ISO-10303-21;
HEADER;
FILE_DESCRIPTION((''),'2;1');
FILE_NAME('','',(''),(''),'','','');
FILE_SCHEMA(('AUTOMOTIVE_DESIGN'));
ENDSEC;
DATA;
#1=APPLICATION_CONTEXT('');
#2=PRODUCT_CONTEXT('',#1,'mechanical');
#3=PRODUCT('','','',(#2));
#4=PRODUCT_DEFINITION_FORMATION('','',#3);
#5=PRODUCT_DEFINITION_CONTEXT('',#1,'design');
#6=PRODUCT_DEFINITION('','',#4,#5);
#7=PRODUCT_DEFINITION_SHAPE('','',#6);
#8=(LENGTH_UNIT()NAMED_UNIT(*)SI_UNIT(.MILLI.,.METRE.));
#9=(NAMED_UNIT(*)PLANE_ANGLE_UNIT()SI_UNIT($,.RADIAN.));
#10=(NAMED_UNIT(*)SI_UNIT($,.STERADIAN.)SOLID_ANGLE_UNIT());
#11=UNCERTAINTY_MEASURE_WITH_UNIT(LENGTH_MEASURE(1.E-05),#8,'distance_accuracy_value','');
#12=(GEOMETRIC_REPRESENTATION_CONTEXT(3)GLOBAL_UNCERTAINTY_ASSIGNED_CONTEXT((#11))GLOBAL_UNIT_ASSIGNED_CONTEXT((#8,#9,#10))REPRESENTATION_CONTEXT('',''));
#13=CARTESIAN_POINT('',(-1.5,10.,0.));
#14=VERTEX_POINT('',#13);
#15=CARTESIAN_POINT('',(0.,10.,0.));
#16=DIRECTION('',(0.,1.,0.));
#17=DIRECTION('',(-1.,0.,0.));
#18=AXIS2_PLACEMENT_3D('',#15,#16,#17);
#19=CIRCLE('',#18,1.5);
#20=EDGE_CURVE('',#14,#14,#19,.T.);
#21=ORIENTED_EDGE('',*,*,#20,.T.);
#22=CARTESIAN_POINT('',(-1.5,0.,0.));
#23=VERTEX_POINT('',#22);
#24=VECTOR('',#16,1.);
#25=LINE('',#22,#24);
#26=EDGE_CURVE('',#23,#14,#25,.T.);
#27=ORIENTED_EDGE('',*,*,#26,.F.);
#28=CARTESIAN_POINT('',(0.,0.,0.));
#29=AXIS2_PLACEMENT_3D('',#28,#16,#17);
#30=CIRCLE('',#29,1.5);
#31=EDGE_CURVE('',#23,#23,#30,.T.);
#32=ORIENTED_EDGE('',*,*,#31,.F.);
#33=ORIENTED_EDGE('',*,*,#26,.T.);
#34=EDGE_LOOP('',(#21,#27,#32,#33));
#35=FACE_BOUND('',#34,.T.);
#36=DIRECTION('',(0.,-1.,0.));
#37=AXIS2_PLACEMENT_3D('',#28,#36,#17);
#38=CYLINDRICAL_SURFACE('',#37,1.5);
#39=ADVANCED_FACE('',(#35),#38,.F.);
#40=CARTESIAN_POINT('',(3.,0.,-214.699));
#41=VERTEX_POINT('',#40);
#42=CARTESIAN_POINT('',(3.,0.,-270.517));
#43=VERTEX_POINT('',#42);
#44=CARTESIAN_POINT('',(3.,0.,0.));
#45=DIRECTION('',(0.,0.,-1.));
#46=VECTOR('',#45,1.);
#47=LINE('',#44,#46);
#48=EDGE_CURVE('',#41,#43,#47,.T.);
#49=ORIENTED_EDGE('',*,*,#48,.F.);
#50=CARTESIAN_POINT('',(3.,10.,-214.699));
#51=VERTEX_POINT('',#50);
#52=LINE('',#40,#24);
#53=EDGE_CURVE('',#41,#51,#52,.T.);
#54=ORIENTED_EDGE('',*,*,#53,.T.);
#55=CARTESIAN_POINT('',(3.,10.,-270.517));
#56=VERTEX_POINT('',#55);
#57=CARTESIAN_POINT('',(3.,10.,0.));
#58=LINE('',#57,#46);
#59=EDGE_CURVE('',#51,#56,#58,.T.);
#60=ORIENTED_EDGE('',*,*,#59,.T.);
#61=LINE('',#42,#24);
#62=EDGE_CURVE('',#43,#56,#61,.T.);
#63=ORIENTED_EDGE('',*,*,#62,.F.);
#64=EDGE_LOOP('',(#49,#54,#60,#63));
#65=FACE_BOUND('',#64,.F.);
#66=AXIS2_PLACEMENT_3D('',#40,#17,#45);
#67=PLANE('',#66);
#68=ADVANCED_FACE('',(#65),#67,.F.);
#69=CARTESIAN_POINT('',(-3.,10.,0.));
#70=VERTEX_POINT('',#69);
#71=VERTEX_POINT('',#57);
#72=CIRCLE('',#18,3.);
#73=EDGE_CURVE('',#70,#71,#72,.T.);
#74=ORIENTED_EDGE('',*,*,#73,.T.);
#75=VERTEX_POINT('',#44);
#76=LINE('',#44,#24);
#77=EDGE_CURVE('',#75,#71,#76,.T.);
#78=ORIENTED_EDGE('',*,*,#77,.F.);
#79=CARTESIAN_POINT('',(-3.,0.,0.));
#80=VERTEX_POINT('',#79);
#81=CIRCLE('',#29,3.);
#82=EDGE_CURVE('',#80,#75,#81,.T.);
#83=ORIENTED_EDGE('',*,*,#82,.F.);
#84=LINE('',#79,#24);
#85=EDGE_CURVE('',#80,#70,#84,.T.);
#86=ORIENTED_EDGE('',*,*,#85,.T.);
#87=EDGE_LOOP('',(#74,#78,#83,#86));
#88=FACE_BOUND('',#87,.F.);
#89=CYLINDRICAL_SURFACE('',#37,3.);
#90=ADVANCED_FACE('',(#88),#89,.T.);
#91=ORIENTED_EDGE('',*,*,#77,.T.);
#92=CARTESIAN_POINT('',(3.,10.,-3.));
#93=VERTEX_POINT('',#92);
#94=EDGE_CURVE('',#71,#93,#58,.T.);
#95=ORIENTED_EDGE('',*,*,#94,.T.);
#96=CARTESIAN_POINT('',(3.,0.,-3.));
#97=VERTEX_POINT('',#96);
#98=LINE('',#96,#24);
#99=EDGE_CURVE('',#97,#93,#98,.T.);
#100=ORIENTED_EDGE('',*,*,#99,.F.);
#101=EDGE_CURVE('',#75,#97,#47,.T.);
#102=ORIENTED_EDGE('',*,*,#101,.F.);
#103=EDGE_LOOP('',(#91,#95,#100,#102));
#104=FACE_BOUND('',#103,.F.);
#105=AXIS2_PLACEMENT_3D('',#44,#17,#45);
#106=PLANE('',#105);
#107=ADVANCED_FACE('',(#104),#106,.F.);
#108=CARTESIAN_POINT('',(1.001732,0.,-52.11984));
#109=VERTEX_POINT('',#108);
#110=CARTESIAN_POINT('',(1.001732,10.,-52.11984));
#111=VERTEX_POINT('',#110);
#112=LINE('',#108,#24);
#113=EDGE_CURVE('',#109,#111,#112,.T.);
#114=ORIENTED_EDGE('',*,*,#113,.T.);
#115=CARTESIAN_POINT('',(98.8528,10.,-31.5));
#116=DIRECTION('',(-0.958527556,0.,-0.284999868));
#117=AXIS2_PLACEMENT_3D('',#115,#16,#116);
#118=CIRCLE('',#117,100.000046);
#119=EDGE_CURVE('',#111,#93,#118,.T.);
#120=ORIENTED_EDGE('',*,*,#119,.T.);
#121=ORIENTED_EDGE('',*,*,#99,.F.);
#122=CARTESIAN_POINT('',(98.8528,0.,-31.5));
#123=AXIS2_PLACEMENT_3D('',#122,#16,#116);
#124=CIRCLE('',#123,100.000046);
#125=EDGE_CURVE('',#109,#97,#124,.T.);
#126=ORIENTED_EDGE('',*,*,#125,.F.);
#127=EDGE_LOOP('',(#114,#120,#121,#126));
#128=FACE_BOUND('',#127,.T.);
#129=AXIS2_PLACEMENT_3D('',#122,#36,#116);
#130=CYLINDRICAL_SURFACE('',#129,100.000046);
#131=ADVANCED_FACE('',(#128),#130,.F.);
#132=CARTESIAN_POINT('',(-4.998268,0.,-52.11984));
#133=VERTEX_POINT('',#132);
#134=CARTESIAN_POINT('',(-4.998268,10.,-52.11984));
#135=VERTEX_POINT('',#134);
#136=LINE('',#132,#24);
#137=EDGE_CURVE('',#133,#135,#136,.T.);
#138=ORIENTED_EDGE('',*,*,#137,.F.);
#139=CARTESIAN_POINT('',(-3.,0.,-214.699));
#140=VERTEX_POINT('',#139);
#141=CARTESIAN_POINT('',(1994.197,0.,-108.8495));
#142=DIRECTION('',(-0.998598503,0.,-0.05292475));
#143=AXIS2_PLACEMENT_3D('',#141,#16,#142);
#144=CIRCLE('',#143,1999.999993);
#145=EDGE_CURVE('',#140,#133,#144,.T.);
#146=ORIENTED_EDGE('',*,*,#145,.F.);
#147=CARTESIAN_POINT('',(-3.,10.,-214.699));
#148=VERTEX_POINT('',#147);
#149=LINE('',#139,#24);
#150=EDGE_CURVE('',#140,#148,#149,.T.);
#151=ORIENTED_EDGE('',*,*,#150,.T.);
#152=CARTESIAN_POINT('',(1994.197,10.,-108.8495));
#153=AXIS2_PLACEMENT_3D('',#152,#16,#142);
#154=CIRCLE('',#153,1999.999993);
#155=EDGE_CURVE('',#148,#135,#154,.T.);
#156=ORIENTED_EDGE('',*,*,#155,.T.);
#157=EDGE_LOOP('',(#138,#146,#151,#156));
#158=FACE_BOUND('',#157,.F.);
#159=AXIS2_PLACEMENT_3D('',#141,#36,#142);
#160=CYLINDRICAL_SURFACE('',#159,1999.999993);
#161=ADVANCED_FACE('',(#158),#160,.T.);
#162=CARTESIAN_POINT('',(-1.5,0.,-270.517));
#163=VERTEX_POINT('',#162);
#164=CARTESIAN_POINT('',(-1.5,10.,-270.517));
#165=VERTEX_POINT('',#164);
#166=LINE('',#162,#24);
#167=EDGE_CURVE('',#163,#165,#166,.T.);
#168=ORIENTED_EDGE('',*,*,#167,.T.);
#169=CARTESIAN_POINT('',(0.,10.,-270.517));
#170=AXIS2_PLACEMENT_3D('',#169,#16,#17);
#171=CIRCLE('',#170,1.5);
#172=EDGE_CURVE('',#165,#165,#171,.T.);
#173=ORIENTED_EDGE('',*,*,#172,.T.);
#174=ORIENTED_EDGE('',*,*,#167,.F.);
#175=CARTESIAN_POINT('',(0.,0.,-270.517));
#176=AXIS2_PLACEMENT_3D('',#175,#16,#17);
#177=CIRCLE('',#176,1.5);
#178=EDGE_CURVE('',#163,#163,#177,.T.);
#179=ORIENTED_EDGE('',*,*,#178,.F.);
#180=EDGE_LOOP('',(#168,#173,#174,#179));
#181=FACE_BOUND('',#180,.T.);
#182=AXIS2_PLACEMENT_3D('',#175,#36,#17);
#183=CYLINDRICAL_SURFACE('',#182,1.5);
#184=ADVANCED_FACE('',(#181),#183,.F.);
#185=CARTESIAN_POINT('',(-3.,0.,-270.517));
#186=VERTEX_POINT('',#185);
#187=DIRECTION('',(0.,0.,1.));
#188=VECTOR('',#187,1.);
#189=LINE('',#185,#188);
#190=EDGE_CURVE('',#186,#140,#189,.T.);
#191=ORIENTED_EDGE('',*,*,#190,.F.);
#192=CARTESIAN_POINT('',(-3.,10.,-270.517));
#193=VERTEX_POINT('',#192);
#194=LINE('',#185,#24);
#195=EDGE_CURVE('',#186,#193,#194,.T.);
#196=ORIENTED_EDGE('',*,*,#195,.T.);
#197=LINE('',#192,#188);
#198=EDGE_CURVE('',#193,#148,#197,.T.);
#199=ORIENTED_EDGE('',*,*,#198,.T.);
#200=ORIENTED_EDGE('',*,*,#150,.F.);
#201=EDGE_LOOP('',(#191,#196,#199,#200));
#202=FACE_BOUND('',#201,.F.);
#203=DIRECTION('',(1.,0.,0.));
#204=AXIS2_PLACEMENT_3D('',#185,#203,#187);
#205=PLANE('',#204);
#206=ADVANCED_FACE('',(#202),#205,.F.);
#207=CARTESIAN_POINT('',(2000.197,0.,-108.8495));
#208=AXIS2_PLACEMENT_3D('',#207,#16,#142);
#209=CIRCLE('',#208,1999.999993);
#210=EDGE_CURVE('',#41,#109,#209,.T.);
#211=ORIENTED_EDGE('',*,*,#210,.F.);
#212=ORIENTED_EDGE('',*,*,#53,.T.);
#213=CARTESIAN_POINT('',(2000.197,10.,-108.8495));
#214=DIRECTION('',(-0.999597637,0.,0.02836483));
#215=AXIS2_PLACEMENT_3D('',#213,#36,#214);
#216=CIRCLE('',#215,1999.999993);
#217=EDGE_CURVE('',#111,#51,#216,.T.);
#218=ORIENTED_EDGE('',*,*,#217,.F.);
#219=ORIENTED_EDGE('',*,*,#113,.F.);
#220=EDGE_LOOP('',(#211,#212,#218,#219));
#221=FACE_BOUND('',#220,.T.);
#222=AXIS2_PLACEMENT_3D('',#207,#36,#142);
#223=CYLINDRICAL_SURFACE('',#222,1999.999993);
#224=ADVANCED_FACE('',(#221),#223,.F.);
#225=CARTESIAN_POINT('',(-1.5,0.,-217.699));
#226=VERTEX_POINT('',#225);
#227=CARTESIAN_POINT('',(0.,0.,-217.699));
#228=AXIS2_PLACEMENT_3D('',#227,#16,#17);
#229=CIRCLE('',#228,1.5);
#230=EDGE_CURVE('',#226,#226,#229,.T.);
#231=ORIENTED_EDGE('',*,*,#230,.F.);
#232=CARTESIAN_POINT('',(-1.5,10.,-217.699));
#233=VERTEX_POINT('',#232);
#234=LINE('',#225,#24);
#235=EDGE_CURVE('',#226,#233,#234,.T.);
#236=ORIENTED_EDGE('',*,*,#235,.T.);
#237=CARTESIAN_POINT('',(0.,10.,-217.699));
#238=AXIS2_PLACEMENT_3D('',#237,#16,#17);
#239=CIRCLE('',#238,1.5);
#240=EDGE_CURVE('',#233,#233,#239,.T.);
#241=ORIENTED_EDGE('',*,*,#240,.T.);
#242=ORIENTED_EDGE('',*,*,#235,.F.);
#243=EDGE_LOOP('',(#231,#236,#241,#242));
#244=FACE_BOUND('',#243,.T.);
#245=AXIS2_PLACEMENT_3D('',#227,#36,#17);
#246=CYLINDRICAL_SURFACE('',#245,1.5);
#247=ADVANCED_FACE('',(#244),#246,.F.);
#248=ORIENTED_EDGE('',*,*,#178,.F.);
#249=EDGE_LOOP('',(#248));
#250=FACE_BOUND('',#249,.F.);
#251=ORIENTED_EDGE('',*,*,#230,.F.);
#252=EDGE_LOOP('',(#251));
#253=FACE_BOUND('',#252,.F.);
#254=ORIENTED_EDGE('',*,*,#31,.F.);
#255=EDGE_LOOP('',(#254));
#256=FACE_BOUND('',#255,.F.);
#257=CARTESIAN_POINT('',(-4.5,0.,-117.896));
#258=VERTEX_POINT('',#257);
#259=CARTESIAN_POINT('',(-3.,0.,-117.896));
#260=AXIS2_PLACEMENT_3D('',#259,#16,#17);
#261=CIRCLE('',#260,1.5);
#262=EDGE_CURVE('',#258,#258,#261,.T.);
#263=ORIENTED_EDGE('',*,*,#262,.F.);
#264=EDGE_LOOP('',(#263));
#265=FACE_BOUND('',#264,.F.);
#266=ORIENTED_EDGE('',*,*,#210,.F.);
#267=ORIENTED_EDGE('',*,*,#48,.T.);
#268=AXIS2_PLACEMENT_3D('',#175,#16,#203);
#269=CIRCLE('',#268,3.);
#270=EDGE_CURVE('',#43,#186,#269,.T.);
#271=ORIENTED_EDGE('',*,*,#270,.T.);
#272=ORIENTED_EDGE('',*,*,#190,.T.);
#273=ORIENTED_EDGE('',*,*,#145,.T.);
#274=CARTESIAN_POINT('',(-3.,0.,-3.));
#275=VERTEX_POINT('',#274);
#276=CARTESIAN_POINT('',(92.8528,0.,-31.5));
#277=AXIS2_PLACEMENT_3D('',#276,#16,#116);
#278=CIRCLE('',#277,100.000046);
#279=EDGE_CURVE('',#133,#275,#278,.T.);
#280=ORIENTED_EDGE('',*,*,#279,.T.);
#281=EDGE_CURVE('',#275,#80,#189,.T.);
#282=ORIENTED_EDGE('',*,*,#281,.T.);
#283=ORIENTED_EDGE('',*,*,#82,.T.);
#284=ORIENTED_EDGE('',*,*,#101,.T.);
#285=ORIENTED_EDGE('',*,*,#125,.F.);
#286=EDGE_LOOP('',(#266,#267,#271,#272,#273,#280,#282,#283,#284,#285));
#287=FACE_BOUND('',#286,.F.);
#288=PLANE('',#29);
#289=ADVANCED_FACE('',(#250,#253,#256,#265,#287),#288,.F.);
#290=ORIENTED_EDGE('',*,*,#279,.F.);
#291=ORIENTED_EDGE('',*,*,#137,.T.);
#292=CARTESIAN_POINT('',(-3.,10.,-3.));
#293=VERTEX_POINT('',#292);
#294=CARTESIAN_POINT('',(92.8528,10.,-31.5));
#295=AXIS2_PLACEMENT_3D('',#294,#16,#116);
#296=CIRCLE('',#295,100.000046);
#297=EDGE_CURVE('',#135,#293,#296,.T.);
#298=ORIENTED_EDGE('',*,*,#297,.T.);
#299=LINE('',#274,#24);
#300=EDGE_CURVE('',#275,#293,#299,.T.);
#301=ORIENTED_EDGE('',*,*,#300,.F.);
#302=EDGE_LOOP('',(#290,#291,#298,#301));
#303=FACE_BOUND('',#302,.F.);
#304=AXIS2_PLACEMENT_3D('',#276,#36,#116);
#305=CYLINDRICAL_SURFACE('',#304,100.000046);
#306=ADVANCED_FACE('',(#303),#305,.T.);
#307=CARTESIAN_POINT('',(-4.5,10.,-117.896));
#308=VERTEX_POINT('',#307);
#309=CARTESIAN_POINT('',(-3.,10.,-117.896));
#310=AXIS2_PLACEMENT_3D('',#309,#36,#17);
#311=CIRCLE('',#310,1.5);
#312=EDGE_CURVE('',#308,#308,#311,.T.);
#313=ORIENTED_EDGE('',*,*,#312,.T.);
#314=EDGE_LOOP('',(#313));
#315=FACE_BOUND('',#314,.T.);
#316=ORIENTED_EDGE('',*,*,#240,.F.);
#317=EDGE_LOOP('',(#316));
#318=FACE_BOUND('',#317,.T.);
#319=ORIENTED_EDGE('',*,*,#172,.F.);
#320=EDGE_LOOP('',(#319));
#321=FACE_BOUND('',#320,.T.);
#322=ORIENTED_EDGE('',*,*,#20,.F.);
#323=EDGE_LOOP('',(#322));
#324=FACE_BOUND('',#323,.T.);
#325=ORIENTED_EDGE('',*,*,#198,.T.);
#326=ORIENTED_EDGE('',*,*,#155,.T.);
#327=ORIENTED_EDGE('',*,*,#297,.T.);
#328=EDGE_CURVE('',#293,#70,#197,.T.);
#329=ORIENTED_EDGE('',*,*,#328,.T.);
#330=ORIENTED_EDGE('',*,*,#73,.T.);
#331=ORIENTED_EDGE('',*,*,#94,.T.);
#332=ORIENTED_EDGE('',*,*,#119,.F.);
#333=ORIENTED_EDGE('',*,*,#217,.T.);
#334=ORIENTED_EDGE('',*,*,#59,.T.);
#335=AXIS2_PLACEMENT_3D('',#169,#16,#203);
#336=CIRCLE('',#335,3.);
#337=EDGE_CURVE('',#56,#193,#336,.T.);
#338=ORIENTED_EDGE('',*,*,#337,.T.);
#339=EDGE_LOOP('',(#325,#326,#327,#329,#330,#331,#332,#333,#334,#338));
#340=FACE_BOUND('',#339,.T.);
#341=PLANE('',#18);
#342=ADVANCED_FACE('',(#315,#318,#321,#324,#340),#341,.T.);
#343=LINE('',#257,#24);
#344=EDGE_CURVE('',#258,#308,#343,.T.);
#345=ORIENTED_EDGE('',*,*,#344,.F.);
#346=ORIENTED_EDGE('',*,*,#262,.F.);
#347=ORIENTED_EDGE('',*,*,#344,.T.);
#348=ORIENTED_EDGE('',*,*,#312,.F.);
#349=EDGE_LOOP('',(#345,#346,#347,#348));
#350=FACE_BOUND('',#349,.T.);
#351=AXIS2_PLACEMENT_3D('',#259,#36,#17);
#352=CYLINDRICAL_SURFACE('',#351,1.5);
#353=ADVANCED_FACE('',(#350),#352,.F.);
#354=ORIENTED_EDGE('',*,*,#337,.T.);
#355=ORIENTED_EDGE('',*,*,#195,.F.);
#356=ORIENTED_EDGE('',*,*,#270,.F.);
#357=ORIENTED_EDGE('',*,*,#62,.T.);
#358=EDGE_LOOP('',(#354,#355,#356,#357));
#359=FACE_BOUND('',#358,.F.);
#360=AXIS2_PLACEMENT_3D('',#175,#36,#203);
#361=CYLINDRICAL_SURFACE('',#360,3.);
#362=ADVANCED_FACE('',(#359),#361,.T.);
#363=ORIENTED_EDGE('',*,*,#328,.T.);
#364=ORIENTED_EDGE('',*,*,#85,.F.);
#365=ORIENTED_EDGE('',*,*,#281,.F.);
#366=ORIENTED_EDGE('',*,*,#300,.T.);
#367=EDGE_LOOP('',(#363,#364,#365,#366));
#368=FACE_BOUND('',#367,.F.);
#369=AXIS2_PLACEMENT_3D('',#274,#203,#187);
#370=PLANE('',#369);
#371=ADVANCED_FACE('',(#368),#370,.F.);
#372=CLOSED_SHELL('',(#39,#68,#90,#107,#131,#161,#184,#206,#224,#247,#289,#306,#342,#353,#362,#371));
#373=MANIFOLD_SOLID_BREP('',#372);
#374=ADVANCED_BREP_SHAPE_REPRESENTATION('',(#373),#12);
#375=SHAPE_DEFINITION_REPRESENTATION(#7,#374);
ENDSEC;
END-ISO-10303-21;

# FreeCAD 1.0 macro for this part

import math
import FreeCAD as App
import Part
import Sketcher

V = App.Vector
Q = App.Units.Quantity

doc = App.newDocument("Part")
params = doc.addObject("Spreadsheet::Sheet", "Params")
for row, (alias, value) in enumerate([
    ("sketch1_diameter", "3 mm"),
    ("sketch1_radius", "3 mm"),
    ("sketch1_radius2", "100 mm"),
    ("sketch1_radius3", "2000 mm"),
    ("sketch1_height", "3 mm"),
    ("pad1_length", "10 mm"),
], start=1):
    params.set(f"A{row}", alias)
    params.set(f"B{row}", "=" + value)
    params.setAlias(f"B{row}", alias)

body = doc.addObject("PartDesign::Body", "Body")

# Sketch on XZ plane
sketch1 = body.newObject("Sketcher::SketchObject", "Sketch")
sketch1.AttachmentSupport = (doc.getObject("XZ_Plane"), [""])
sketch1.MapMode = "FlatFace"
sketch1.addGeometry([
    Part.ArcOfCircle(Part.Circle(V(0, 0, 0), V(0, 0, 1), 3), math.radians(0), math.radians(180)),  # 0
    Part.LineSegment(V(3, 0, 0), V(3, -3, 0)),  # 1
    Part.ArcOfCircle(Part.Circle(V(98.8528, -31.5, 0), V(0, 0, 1), 100.000046), math.radians(163.441159), math.radians(191.899655)),  # 2
    Part.ArcOfCircle(Part.Circle(V(2000.197, -108.8495, 0), V(0, 0, 1), 1999.999993), math.radians(178.374597), math.radians(183.033782)),  # 3
    Part.LineSegment(V(3, -214.699, 0), V(3, -270.517, 0)),  # 4
    Part.ArcOfCircle(Part.Circle(V(0, -270.517, 0), V(0, 0, 1), 3), math.radians(180), math.radians(360)),  # 5
    Part.LineSegment(V(-3, -270.517, 0), V(-3, -214.699, 0)),  # 6
    Part.ArcOfCircle(Part.Circle(V(1994.197, -108.8495, 0), V(0, 0, 1), 1999.999993), math.radians(178.374597), math.radians(183.033782)),  # 7
    Part.ArcOfCircle(Part.Circle(V(92.8528, -31.5, 0), V(0, 0, 1), 100.000046), math.radians(163.441159), math.radians(191.899655)),  # 8
    Part.LineSegment(V(-3, -3, 0), V(-3, 0, 0)),  # 9
    Part.Circle(V(-3, -117.896, 0), V(0, 0, 1), 1.5),  # 10
    Part.Circle(V(0, -270.517, 0), V(0, 0, 1), 1.5),  # 11
    Part.Circle(V(0, -217.699, 0), V(0, 0, 1), 1.5),  # 12
    Part.Circle(V(0, 0, 0), V(0, 0, 1), 1.5),  # 13
], False)
sketch1.addConstraint([
    Sketcher.Constraint("Tangent", 0, 1, 1, 1),
    Sketcher.Constraint("Coincident", 1, 2, 2, 1),
    Sketcher.Constraint("Coincident", 2, 2, 3, 1),
    Sketcher.Constraint("Coincident", 3, 2, 4, 1),
    Sketcher.Constraint("Tangent", 4, 2, 5, 2),
    Sketcher.Constraint("Tangent", 5, 1, 6, 1),
    Sketcher.Constraint("Coincident", 6, 2, 7, 2),
    Sketcher.Constraint("Coincident", 7, 1, 8, 2),
    Sketcher.Constraint("Coincident", 8, 1, 9, 1),
    Sketcher.Constraint("Tangent", 9, 2, 0, 2),
    Sketcher.Constraint("Vertical", 1),
    Sketcher.Constraint("Vertical", 4),
    Sketcher.Constraint("Vertical", 6),
    Sketcher.Constraint("Vertical", 9),
    Sketcher.Constraint("Coincident", 0, 3, -1, 1),
    Sketcher.Constraint("Coincident", 13, 3, -1, 1),
    Sketcher.Constraint("Coincident", 11, 3, 5, 3),
    Sketcher.Constraint("Equal", 0, 5),
    Sketcher.Constraint("Equal", 3, 7),
    Sketcher.Constraint("Equal", 2, 8),
    Sketcher.Constraint("Equal", 10, 11),
    Sketcher.Constraint("Equal", 11, 12),
    Sketcher.Constraint("Equal", 12, 13),
    Sketcher.Constraint("PointOnObject", 5, 3, -2),
    Sketcher.Constraint("PointOnObject", 12, 3, -2),
    Sketcher.Constraint("Horizontal", 3, 3, 7, 3),
    Sketcher.Constraint("Horizontal", 2, 3, 8, 3),
    Sketcher.Constraint("Horizontal", 1, 2, 8, 1),
    Sketcher.Constraint("Vertical", 10, 3, 5, 1),
    Sketcher.Constraint("Equal", 4, 6),
    Sketcher.Constraint("Diameter", 10, Q("3 mm")),
    Sketcher.Constraint("Radius", 0, Q("3 mm")),
    Sketcher.Constraint("Radius", 2, Q("100 mm")),
    Sketcher.Constraint("Radius", 3, Q("2000 mm")),
    Sketcher.Constraint("DistanceY", 1, 2, 1, 1, Q("3 mm")),
    Sketcher.Constraint("DistanceY", 12, 3, 6, 2, Q("3 mm")),
    Sketcher.Constraint("DistanceY", 5, 3, -1, 1, Q("270.517 mm")),
    Sketcher.Constraint("DistanceY", 12, 3, -1, 1, Q("217.699 mm")),
    Sketcher.Constraint("DistanceY", 2, 3, -1, 1, Q("31.5 mm")),
    Sketcher.Constraint("DistanceX", -1, 1, 3, 3, Q("2000.197 mm")),
    Sketcher.Constraint("DistanceY", 10, 3, -1, 1, Q("117.896 mm")),
])
sketch1.setExpression("Constraints[30]", "Params.sketch1_diameter")
sketch1.setExpression("Constraints[31]", "Params.sketch1_radius")
sketch1.setExpression("Constraints[32]", "Params.sketch1_radius2")
sketch1.setExpression("Constraints[33]", "Params.sketch1_radius3")
sketch1.setExpression("Constraints[34]", "Params.sketch1_height")
pad1 = body.newObject("PartDesign::Pad", "Pad")
pad1.Profile = sketch1
pad1.setExpression("Length", "Params.pad1_length")
pad1.Reversed = True

doc.recompute()
